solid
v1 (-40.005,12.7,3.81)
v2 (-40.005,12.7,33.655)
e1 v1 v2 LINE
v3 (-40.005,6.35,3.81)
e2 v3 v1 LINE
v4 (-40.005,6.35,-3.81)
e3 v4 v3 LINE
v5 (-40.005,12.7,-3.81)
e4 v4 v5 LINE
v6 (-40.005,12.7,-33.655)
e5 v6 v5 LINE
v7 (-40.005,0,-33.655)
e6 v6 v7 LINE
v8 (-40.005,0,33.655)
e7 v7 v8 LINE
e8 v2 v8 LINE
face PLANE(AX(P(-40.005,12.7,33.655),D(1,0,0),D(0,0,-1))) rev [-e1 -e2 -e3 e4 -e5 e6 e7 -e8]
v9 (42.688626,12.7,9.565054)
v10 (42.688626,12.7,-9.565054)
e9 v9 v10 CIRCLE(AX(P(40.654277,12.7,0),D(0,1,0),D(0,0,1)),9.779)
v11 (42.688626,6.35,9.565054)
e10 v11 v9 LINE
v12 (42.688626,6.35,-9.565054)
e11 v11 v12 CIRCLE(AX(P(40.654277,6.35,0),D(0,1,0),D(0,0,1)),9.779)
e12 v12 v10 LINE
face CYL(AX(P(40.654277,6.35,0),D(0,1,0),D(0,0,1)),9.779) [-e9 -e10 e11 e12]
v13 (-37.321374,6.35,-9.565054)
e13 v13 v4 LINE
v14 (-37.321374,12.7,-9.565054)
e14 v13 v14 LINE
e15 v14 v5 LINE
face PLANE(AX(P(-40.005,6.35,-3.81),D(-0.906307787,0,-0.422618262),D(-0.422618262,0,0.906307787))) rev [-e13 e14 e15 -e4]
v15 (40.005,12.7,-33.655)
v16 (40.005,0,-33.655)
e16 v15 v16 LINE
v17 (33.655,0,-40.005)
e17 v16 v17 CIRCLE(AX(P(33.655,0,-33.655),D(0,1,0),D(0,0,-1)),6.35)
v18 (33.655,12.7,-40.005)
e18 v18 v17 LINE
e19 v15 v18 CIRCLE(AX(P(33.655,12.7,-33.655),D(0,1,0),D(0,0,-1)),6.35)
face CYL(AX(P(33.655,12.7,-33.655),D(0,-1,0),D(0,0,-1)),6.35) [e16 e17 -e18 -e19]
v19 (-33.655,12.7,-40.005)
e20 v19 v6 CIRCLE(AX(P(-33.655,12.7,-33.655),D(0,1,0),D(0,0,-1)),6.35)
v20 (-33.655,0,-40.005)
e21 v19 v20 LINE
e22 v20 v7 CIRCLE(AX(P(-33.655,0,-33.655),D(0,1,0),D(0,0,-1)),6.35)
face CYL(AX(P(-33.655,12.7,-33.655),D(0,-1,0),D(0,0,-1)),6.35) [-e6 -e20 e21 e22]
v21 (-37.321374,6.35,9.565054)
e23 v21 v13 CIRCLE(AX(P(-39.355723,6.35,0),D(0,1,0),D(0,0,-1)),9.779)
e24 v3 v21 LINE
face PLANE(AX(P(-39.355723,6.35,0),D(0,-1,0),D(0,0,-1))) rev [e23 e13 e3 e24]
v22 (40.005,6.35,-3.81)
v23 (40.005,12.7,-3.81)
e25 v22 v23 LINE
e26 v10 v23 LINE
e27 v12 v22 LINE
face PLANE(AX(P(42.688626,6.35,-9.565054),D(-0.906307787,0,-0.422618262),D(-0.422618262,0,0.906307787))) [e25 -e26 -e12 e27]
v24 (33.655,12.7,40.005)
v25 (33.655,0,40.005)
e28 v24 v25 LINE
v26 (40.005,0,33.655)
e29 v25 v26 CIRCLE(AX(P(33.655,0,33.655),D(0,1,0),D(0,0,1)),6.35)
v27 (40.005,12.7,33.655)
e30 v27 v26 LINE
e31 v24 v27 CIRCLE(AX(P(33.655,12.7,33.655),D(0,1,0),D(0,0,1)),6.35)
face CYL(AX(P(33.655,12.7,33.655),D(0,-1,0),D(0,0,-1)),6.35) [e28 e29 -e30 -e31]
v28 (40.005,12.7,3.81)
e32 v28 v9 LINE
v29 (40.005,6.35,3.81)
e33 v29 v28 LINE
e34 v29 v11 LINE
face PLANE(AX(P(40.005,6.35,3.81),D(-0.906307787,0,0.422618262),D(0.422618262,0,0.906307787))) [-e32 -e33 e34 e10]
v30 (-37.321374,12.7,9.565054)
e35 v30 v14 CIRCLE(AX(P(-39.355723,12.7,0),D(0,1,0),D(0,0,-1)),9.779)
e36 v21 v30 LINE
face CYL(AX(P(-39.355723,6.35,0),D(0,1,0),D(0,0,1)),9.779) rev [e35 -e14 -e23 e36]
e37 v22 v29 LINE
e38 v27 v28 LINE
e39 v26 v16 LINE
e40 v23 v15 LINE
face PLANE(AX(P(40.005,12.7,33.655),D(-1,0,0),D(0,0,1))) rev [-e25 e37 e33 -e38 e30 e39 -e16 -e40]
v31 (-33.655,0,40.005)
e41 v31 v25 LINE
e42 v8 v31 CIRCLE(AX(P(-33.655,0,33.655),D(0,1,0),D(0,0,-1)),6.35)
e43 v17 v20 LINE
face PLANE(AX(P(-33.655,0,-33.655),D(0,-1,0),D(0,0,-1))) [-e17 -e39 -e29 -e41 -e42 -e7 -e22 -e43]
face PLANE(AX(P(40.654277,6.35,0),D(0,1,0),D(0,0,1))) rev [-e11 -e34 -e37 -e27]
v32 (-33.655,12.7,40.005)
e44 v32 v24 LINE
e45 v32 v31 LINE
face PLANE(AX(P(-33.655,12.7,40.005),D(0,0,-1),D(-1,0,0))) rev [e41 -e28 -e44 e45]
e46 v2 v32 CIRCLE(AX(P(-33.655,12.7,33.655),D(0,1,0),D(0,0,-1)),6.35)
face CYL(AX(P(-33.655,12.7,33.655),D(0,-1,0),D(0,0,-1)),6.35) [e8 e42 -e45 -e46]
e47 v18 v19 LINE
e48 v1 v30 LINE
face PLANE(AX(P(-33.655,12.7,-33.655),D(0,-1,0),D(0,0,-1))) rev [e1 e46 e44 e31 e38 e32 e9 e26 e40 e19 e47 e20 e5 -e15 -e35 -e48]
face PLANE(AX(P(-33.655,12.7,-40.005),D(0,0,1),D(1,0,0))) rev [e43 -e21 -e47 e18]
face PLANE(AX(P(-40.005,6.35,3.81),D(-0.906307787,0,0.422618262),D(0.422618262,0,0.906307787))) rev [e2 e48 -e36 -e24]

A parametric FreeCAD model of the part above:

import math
import FreeCAD as App
import Part
import Sketcher

V = App.Vector
Q = App.Units.Quantity

doc = App.newDocument("Part")
body = doc.addObject("PartDesign::Body", "Body")

# Sketch on XZ plane
sketch1 = doc.addObject("Sketcher::SketchObject", "Sketch")
body.addObject(sketch1)
sketch1.AttachmentSupport = (doc.XZ_Plane, [""])
sketch1.MapMode = "FlatFace"
sketch1.addGeometry([
    Part.LineSegment(V(-33.655, 40.005, 0), V(33.655, 40.005, 0)),  # 0
    Part.ArcOfCircle(Part.Circle(V(33.655, 33.655, 0), V(0, 0, 1), 6.35), math.radians(0), math.radians(90)),  # 1
    Part.LineSegment(V(40.005, 33.655, 0), V(40.005, -33.655, 0)),  # 2
    Part.ArcOfCircle(Part.Circle(V(33.655, -33.655, 0), V(0, 0, 1), 6.35), math.radians(-90), math.radians(0)),  # 3
    Part.LineSegment(V(33.655, -40.005, 0), V(-33.655, -40.005, 0)),  # 4
    Part.ArcOfCircle(Part.Circle(V(-33.655, -33.655, 0), V(0, 0, 1), 6.35), math.radians(180), math.radians(270)),  # 5
    Part.LineSegment(V(-40.005, -33.655, 0), V(-40.005, 33.655, 0)),  # 6
    Part.ArcOfCircle(Part.Circle(V(-33.655, 33.655, 0), V(0, 0, 1), 6.35), math.radians(90), math.radians(180)),  # 7
], False)
sketch1.addConstraint([
    Sketcher.Constraint("Tangent", 0, 2, 1, 2),
    Sketcher.Constraint("Tangent", 1, 1, 2, 1),
    Sketcher.Constraint("Tangent", 2, 2, 3, 2),
    Sketcher.Constraint("Tangent", 3, 1, 4, 1),
    Sketcher.Constraint("Tangent", 4, 2, 5, 2),
    Sketcher.Constraint("Tangent", 5, 1, 6, 1),
    Sketcher.Constraint("Tangent", 6, 2, 7, 2),
    Sketcher.Constraint("Tangent", 7, 1, 0, 1),
    Sketcher.Constraint("Horizontal", 0),
    Sketcher.Constraint("Vertical", 2),
    Sketcher.Constraint("Horizontal", 4),
    Sketcher.Constraint("Vertical", 6),
    Sketcher.Constraint("Equal", 1, 3),
    Sketcher.Constraint("Equal", 3, 5),
    Sketcher.Constraint("Equal", 5, 7),
    Sketcher.Constraint("Symmetric", 1, 3, 5, 3, -1, 1),
    Sketcher.Constraint("Equal", 4, 2),
    Sketcher.Constraint("Radius", 1, Q("0.25 in")),
    Sketcher.Constraint("DistanceX", 0, 1, 0, 2, Q("2.65 in")),
])
pad1 = doc.addObject("PartDesign::Pad", "Pad")
body.addObject(pad1)
pad1.Profile = sketch1
pad1.Length = Q("0.5 in")
pad1.Reversed = True

# Sketch on XZ plane
sketch2 = doc.addObject("Sketcher::SketchObject", "Sketch001")
body.addObject(sketch2)
sketch2.AttachmentSupport = (doc.XZ_Plane, [""])
sketch2.MapMode = "FlatFace"
sketch2.AttachmentOffset = App.Placement(V(0, 0, -0.5 * 25.4), App.Rotation())
sketch2.addGeometry([
    Part.LineSegment(V(-37.321374, -9.565054, 0), V(-40.005, -3.81, 0)),
    Part.LineSegment(V(-40.005, -3.81, 0), V(-40.005, 3.81, 0)),
    Part.LineSegment(V(-40.005, 3.81, 0), V(-37.321374, 9.565054, 0)),
    Part.ArcOfCircle(Part.Circle(V(-39.355723, 0, 0), V(0, 0, 1), 9.779), math.radians(-77.99293), math.radians(77.99293)),
], False)
sketch2.addConstraint([
    Sketcher.Constraint("Coincident", 0, 2, 1, 1),
    Sketcher.Constraint("Coincident", 1, 2, 2, 1),
    Sketcher.Constraint("Coincident", 2, 2, 3, 2),
    Sketcher.Constraint("Coincident", 3, 1, 0, 1),
    Sketcher.Constraint("Vertical", 1),
    Sketcher.Constraint("Symmetric", 2, 2, 3, 1, -1),
    Sketcher.Constraint("Equal", 0, 2),
    Sketcher.Constraint("DistanceY", 1, 1, 1, 2, Q("0.3 in")),
    Sketcher.Constraint("Angle", 0, Q("115 deg")),
    Sketcher.Constraint("Radius", 3, Q("0.385 in")),
    Sketcher.Constraint("Distance", 0, Q("0.25 in")),
    Sketcher.Constraint("DistanceX", 0, 2, -1, 1, Q("1.575 in")),
])
pocket1 = doc.addObject("PartDesign::Pocket", "Pocket")
body.addObject(pocket1)
pocket1.Profile = sketch2
pocket1.Length = Q("0.25 in")
pocket1.Reversed = True

# Sketch on XZ plane
sketch3 = doc.addObject("Sketcher::SketchObject", "Sketch002")
body.addObject(sketch3)
sketch3.AttachmentSupport = (doc.XZ_Plane, [""])
sketch3.MapMode = "FlatFace"
sketch3.AttachmentOffset = App.Placement(V(0, 0, -0.5 * 25.4), App.Rotation())
sketch3.addGeometry([
    Part.LineSegment(V(42.688626, -9.565054, 0), V(40.005, -3.81, 0)),
    Part.LineSegment(V(40.005, -3.81, 0), V(40.005, 3.81, 0)),
    Part.LineSegment(V(40.005, 3.81, 0), V(42.688626, 9.565054, 0)),
    Part.ArcOfCircle(Part.Circle(V(40.654277, 0, 0), V(0, 0, 1), 9.779), math.radians(-77.99293), math.radians(77.99293)),
], False)
sketch3.addConstraint([
    Sketcher.Constraint("Coincident", 0, 2, 1, 1),
    Sketcher.Constraint("Coincident", 1, 2, 2, 1),
    Sketcher.Constraint("Coincident", 2, 2, 3, 2),
    Sketcher.Constraint("Coincident", 3, 1, 0, 1),
    Sketcher.Constraint("Vertical", 1),
    Sketcher.Constraint("Symmetric", 2, 2, 3, 1, -1),
    Sketcher.Constraint("Equal", 0, 2),
    Sketcher.Constraint("DistanceY", 1, 1, 1, 2, Q("0.3 in")),
    Sketcher.Constraint("Angle", 0, Q("115 deg")),
    Sketcher.Constraint("Radius", 3, Q("0.385 in")),
    Sketcher.Constraint("Distance", 0, Q("0.25 in")),
    Sketcher.Constraint("DistanceX", -1, 1, 0, 2, Q("1.575 in")),
])
pad2 = doc.addObject("PartDesign::Pad", "Pad001")
body.addObject(pad2)
pad2.Profile = sketch3
pad2.Length = Q("0.25 in")

doc.recompute()
